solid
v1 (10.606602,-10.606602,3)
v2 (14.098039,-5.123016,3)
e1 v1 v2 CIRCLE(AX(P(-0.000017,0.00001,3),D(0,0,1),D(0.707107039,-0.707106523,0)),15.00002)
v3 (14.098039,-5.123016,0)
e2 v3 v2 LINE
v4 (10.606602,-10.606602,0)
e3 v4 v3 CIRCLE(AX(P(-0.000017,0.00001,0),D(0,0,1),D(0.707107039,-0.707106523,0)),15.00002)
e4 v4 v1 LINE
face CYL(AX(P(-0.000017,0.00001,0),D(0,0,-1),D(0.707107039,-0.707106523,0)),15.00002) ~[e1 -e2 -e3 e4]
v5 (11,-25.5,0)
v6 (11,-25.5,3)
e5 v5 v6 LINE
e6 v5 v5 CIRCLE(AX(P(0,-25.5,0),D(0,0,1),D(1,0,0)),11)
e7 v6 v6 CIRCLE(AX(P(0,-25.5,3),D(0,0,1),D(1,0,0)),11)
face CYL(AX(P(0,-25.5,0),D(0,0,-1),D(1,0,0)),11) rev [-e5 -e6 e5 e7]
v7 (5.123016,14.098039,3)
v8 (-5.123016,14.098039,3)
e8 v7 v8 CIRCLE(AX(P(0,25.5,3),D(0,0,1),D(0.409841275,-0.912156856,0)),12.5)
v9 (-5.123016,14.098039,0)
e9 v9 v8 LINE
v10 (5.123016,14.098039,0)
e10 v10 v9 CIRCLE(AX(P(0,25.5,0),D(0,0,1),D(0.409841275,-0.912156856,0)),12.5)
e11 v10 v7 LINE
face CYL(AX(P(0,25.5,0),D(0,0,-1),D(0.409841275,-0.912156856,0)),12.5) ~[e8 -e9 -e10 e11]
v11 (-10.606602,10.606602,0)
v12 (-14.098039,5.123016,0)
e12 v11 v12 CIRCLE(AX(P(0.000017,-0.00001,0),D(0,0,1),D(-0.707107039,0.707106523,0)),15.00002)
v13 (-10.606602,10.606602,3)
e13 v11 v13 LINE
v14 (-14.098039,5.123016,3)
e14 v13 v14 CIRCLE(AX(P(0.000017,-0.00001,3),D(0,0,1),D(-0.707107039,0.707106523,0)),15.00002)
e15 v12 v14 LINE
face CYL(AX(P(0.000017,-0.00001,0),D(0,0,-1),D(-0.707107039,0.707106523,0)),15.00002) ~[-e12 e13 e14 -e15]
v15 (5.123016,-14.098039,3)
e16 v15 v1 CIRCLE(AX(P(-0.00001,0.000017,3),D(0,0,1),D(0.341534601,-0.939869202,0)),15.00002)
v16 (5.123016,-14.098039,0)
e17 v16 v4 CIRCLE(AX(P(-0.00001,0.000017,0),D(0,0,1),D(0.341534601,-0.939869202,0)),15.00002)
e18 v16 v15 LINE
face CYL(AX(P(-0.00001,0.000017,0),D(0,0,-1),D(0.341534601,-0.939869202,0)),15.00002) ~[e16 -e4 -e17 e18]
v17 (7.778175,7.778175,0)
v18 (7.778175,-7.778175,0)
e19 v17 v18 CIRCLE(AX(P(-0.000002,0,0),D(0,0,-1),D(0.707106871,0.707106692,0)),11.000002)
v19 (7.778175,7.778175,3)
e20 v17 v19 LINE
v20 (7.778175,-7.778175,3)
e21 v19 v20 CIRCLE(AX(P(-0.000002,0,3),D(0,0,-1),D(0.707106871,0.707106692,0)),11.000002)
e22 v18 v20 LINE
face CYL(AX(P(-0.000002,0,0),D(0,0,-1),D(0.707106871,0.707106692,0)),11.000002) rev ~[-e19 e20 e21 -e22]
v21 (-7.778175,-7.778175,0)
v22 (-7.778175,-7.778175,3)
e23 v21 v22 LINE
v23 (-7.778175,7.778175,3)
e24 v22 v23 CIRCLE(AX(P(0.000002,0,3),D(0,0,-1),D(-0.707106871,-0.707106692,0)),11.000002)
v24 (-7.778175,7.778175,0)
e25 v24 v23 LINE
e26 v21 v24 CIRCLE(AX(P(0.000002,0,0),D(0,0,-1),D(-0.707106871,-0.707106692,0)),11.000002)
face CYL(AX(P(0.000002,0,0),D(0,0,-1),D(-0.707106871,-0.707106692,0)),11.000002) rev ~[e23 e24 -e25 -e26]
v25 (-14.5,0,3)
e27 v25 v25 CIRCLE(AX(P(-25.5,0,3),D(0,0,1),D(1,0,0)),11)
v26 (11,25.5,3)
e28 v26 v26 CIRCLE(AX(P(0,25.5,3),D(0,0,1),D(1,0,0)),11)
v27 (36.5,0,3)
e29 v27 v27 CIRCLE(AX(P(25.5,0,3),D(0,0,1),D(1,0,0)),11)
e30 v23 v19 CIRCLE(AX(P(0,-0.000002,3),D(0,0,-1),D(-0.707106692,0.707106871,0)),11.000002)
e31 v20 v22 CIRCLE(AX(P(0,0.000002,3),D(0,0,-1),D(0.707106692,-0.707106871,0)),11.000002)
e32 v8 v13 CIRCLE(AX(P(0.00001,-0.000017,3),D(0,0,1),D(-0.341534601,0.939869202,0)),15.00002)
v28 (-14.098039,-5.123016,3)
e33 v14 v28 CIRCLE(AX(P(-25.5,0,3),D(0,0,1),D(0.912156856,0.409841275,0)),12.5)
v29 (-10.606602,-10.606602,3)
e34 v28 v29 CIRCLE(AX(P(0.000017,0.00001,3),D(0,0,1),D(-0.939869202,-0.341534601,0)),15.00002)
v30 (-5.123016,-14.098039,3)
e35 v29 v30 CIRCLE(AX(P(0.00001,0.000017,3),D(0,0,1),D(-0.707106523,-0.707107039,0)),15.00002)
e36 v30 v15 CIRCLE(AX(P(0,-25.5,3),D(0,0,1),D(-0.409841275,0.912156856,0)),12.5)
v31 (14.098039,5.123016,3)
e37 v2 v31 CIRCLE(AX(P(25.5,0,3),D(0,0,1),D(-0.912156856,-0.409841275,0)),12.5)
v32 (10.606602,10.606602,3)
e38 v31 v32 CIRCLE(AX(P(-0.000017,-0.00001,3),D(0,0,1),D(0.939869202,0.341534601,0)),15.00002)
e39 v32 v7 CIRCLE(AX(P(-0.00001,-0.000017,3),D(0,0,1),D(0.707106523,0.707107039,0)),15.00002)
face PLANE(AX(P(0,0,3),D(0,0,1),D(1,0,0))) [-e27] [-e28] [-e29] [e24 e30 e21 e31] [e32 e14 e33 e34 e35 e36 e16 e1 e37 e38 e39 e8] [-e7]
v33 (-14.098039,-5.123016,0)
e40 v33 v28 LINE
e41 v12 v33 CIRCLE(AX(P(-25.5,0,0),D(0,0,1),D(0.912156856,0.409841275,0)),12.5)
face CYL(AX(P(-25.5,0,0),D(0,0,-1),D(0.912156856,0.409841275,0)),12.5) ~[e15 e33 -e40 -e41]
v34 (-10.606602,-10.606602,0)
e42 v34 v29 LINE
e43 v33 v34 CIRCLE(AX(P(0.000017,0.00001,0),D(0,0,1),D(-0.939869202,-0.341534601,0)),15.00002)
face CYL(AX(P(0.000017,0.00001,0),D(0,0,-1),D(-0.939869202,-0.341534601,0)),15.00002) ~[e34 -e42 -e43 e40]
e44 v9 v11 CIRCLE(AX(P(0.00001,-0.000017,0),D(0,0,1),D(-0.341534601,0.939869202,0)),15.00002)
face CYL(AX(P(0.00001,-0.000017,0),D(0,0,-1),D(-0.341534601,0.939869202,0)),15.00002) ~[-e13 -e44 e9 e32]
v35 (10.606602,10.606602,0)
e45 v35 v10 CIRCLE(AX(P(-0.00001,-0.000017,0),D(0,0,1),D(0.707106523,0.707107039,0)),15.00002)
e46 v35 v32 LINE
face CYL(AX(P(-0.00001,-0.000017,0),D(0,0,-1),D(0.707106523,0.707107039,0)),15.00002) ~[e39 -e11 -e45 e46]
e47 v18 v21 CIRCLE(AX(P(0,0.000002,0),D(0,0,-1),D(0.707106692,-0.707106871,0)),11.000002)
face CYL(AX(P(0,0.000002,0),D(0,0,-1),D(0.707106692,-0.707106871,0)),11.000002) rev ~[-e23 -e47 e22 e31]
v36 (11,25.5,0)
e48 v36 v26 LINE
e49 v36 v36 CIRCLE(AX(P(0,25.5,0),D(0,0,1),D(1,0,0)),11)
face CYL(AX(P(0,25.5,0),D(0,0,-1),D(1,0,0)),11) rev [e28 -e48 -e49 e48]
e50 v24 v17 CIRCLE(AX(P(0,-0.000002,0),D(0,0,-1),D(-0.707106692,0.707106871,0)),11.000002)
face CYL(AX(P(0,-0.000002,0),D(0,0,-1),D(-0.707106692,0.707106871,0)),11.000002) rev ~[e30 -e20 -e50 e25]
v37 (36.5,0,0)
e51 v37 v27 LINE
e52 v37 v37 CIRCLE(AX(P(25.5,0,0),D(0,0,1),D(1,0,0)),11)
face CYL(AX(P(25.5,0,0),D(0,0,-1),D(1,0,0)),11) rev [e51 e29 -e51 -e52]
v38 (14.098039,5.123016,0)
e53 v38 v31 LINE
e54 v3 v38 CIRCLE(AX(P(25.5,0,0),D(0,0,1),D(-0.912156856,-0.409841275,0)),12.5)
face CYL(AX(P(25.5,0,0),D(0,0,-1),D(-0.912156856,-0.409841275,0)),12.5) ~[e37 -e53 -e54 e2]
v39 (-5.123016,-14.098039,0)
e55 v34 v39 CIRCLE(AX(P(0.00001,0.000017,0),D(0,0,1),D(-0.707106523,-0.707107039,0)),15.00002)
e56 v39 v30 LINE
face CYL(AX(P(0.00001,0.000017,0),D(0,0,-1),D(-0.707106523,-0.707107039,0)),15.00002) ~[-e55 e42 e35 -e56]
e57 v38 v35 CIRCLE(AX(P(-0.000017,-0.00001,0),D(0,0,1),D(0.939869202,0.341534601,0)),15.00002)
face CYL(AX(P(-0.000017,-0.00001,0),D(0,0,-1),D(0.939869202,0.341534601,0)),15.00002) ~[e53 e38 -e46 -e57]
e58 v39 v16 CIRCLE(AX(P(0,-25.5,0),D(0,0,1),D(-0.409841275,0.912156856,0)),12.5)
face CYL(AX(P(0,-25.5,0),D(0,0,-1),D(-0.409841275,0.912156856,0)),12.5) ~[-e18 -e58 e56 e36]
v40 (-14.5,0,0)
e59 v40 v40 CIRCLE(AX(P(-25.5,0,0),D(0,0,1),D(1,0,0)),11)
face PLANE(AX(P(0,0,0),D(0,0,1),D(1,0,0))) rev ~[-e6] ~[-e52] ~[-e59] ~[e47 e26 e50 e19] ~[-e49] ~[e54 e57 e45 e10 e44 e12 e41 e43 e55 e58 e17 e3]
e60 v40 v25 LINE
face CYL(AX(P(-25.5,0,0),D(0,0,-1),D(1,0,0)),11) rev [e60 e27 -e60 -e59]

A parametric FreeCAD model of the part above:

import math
import FreeCAD as App
import Part
import Sketcher
from FreeCAD import Vector
Q = App.Units.Quantity

doc = App.newDocument("Part")
body = doc.addObject("PartDesign::Body", "Body")

# Sketch on XY plane
sketch1 = body.newObject("Sketcher::SketchObject", "Sketch")
sketch1.AttachmentSupport = (doc.getObject("XY_Plane"), [""])
sketch1.MapMode = "FlatFace"
sketch1.addGeometry([
    Part.ArcOfCircle(Part.Circle(Vector(0, 25.5, 0), Vector(0, 0, 1), 12.5), math.radians(-65.805136), math.radians(245.805136)),  # 0
    Part.ArcOfCircle(Part.Circle(Vector(0.00001, -0.000017, 0), Vector(0, 0, 1), 15.00002), math.radians(109.970398), math.radians(134.999979)),  # 1
    Part.ArcOfCircle(Part.Circle(Vector(0.000017, -0.00001, 0), Vector(0, 0, 1), 15.00002), math.radians(135.000021), math.radians(160.029602)),  # 2
    Part.ArcOfCircle(Part.Circle(Vector(-25.5, 0, 0), Vector(0, 0, 1), 12.5), math.radians(24.194864), math.radians(335.805136)),  # 3
    Part.ArcOfCircle(Part.Circle(Vector(0.000017, 0.00001, 0), Vector(0, 0, 1), 15.00002), math.radians(-160.029602), math.radians(-135.000021)),  # 4
    Part.ArcOfCircle(Part.Circle(Vector(0.00001, 0.000017, 0), Vector(0, 0, 1), 15.00002), math.radians(-134.999979), math.radians(-109.970398)),  # 5
    Part.ArcOfCircle(Part.Circle(Vector(0, -25.5, 0), Vector(0, 0, 1), 12.5), math.radians(114.194864), math.radians(425.805136)),  # 6
    Part.ArcOfCircle(Part.Circle(Vector(-0.00001, 0.000017, 0), Vector(0, 0, 1), 15.00002), math.radians(-70.029602), math.radians(-45.000021)),  # 7
    Part.ArcOfCircle(Part.Circle(Vector(-0.000017, 0.00001, 0), Vector(0, 0, 1), 15.00002), math.radians(-44.999979), math.radians(-19.970398)),  # 8
    Part.ArcOfCircle(Part.Circle(Vector(25.5, 0, 0), Vector(0, 0, 1), 12.5), math.radians(-155.805136), math.radians(155.805136)),  # 9
    Part.ArcOfCircle(Part.Circle(Vector(-0.000017, -0.00001, 0), Vector(0, 0, 1), 15.00002), math.radians(19.970398), math.radians(44.999979)),  # 10
    Part.ArcOfCircle(Part.Circle(Vector(-0.00001, -0.000017, 0), Vector(0, 0, 1), 15.00002), math.radians(45.000021), math.radians(70.029602)),  # 11
    Part.Circle(Vector(0, -25.5, 0), Vector(0, 0, 1), 11),  # 12
    Part.Circle(Vector(-25.5, 0, 0), Vector(0, 0, 1), 11),  # 13
    Part.ArcOfCircle(Part.Circle(Vector(0.000002, 0, 0), Vector(0, 0, 1), 11.000002), math.radians(135.000007), math.radians(224.999993)),  # 14
    Part.ArcOfCircle(Part.Circle(Vector(0, -0.000002, 0), Vector(0, 0, 1), 11.000002), math.radians(45.000007), math.radians(134.999993)),  # 15
    Part.ArcOfCircle(Part.Circle(Vector(-0.000002, 0, 0), Vector(0, 0, 1), 11.000002), math.radians(-44.999993), math.radians(44.999993)),  # 16
    Part.ArcOfCircle(Part.Circle(Vector(0, 0.000002, 0), Vector(0, 0, 1), 11.000002), math.radians(-134.999993), math.radians(-45.000007)),  # 17
    Part.Circle(Vector(25.5, 0, 0), Vector(0, 0, 1), 11),  # 18
    Part.Circle(Vector(0, 25.5, 0), Vector(0, 0, 1), 11),  # 19
], False)
sketch1.addConstraint([
    Sketcher.Constraint("Coincident", 0, 2, 1, 1),
    Sketcher.Constraint("Tangent", 1, 2, 2, 1),
    Sketcher.Constraint("Coincident", 2, 2, 3, 1),
    Sketcher.Constraint("Coincident", 3, 2, 4, 1),
    Sketcher.Constraint("Tangent", 4, 2, 5, 1),
    Sketcher.Constraint("Coincident", 5, 2, 6, 1),
    Sketcher.Constraint("Coincident", 6, 2, 7, 1),
    Sketcher.Constraint("Tangent", 7, 2, 8, 1),
    Sketcher.Constraint("Coincident", 8, 2, 9, 1),
    Sketcher.Constraint("Coincident", 9, 2, 10, 1),
    Sketcher.Constraint("Tangent", 10, 2, 11, 1),
    Sketcher.Constraint("Coincident", 11, 2, 0, 1),
    Sketcher.Constraint("Tangent", 14, 1, 15, 2),
    Sketcher.Constraint("Tangent", 15, 1, 16, 2),
    Sketcher.Constraint("Tangent", 16, 1, 17, 2),
    Sketcher.Constraint("Tangent", 17, 1, 14, 2),
    Sketcher.Constraint("Coincident", 14, 3, -1, 1),
    Sketcher.Constraint("Coincident", 12, 3, 6, 3),
    Sketcher.Constraint("Coincident", 13, 3, 3, 3),
    Sketcher.Constraint("Coincident", 18, 3, 9, 3),
    Sketcher.Constraint("Coincident", 19, 3, 0, 3),
    Sketcher.Constraint("Equal", 1, 2),
    Sketcher.Constraint("Equal", 0, 3),
    Sketcher.Constraint("Equal", 2, 4),
    Sketcher.Constraint("Equal", 4, 5),
    Sketcher.Constraint("Equal", 3, 6),
    Sketcher.Constraint("Equal", 5, 7),
    Sketcher.Constraint("Equal", 7, 8),
    Sketcher.Constraint("Equal", 6, 9),
    Sketcher.Constraint("Equal", 8, 10),
    Sketcher.Constraint("Equal", 10, 11),
    Sketcher.Constraint("Equal", 12, 13),
    Sketcher.Constraint("Equal", 13, 14),
    Sketcher.Constraint("Equal", 14, 15),
    Sketcher.Constraint("Equal", 17, 18),
    Sketcher.Constraint("Equal", 18, 19),
    Sketcher.Constraint("Symmetric", 0, 3, 6, 3, -1, 1),
    Sketcher.Constraint("Symmetric", 1, 3, 7, 3, -1, 1),
    Sketcher.Constraint("Symmetric", 3, 3, 9, 3, -1, 1),
    Sketcher.Constraint("Symmetric", 4, 3, 10, 3, -1, 1),
    Sketcher.Constraint("Symmetric", 5, 3, 7, 3, -2),
    Sketcher.Constraint("PointOnObject", 0, 3, -2),
    Sketcher.Constraint("PointOnObject", 3, 3, -1),
    Sketcher.Constraint("Horizontal", 4, 2, 7, 2),
    Sketcher.Constraint("Horizontal", 1, 2, 10, 2),
    Sketcher.Constraint("Horizontal", 14, 1, 15, 1),
    Sketcher.Constraint("Horizontal", 16, 1, 17, 1),
    Sketcher.Constraint("Vertical", 1, 2, 4, 2),
    Sketcher.Constraint("Vertical", 15, 1, 16, 1),
    Sketcher.Constraint("Diameter", 12, Q("22 mm")),
    Sketcher.Constraint("Radius", 0, Q("12.5 mm")),
    Sketcher.Constraint("DistanceY", -1, 1, 0, 3, Q("25.5 mm")),
    Sketcher.Constraint("DistanceX", 3, 3, -1, 1, Q("25.5 mm")),
    Sketcher.Constraint("Radius", 1, Q("15.00002 mm")),
    Sketcher.Constraint("DistanceX", 0, 2, 8, 3, Q("5.122999 mm")),
    Sketcher.Constraint("DistanceY", 3, 2, 11, 3, Q("5.122999 mm")),
    Sketcher.Constraint("DistanceX", 1, 2, -1, 1, Q("10.606602 mm")),
    Sketcher.Constraint("DistanceX", 14, 1, 0, 2, Q("2.655159 mm")),
])
pad1 = body.newObject("PartDesign::Pad", "Pad")
pad1.Profile = sketch1
pad1.Length = 3

doc.recompute()
